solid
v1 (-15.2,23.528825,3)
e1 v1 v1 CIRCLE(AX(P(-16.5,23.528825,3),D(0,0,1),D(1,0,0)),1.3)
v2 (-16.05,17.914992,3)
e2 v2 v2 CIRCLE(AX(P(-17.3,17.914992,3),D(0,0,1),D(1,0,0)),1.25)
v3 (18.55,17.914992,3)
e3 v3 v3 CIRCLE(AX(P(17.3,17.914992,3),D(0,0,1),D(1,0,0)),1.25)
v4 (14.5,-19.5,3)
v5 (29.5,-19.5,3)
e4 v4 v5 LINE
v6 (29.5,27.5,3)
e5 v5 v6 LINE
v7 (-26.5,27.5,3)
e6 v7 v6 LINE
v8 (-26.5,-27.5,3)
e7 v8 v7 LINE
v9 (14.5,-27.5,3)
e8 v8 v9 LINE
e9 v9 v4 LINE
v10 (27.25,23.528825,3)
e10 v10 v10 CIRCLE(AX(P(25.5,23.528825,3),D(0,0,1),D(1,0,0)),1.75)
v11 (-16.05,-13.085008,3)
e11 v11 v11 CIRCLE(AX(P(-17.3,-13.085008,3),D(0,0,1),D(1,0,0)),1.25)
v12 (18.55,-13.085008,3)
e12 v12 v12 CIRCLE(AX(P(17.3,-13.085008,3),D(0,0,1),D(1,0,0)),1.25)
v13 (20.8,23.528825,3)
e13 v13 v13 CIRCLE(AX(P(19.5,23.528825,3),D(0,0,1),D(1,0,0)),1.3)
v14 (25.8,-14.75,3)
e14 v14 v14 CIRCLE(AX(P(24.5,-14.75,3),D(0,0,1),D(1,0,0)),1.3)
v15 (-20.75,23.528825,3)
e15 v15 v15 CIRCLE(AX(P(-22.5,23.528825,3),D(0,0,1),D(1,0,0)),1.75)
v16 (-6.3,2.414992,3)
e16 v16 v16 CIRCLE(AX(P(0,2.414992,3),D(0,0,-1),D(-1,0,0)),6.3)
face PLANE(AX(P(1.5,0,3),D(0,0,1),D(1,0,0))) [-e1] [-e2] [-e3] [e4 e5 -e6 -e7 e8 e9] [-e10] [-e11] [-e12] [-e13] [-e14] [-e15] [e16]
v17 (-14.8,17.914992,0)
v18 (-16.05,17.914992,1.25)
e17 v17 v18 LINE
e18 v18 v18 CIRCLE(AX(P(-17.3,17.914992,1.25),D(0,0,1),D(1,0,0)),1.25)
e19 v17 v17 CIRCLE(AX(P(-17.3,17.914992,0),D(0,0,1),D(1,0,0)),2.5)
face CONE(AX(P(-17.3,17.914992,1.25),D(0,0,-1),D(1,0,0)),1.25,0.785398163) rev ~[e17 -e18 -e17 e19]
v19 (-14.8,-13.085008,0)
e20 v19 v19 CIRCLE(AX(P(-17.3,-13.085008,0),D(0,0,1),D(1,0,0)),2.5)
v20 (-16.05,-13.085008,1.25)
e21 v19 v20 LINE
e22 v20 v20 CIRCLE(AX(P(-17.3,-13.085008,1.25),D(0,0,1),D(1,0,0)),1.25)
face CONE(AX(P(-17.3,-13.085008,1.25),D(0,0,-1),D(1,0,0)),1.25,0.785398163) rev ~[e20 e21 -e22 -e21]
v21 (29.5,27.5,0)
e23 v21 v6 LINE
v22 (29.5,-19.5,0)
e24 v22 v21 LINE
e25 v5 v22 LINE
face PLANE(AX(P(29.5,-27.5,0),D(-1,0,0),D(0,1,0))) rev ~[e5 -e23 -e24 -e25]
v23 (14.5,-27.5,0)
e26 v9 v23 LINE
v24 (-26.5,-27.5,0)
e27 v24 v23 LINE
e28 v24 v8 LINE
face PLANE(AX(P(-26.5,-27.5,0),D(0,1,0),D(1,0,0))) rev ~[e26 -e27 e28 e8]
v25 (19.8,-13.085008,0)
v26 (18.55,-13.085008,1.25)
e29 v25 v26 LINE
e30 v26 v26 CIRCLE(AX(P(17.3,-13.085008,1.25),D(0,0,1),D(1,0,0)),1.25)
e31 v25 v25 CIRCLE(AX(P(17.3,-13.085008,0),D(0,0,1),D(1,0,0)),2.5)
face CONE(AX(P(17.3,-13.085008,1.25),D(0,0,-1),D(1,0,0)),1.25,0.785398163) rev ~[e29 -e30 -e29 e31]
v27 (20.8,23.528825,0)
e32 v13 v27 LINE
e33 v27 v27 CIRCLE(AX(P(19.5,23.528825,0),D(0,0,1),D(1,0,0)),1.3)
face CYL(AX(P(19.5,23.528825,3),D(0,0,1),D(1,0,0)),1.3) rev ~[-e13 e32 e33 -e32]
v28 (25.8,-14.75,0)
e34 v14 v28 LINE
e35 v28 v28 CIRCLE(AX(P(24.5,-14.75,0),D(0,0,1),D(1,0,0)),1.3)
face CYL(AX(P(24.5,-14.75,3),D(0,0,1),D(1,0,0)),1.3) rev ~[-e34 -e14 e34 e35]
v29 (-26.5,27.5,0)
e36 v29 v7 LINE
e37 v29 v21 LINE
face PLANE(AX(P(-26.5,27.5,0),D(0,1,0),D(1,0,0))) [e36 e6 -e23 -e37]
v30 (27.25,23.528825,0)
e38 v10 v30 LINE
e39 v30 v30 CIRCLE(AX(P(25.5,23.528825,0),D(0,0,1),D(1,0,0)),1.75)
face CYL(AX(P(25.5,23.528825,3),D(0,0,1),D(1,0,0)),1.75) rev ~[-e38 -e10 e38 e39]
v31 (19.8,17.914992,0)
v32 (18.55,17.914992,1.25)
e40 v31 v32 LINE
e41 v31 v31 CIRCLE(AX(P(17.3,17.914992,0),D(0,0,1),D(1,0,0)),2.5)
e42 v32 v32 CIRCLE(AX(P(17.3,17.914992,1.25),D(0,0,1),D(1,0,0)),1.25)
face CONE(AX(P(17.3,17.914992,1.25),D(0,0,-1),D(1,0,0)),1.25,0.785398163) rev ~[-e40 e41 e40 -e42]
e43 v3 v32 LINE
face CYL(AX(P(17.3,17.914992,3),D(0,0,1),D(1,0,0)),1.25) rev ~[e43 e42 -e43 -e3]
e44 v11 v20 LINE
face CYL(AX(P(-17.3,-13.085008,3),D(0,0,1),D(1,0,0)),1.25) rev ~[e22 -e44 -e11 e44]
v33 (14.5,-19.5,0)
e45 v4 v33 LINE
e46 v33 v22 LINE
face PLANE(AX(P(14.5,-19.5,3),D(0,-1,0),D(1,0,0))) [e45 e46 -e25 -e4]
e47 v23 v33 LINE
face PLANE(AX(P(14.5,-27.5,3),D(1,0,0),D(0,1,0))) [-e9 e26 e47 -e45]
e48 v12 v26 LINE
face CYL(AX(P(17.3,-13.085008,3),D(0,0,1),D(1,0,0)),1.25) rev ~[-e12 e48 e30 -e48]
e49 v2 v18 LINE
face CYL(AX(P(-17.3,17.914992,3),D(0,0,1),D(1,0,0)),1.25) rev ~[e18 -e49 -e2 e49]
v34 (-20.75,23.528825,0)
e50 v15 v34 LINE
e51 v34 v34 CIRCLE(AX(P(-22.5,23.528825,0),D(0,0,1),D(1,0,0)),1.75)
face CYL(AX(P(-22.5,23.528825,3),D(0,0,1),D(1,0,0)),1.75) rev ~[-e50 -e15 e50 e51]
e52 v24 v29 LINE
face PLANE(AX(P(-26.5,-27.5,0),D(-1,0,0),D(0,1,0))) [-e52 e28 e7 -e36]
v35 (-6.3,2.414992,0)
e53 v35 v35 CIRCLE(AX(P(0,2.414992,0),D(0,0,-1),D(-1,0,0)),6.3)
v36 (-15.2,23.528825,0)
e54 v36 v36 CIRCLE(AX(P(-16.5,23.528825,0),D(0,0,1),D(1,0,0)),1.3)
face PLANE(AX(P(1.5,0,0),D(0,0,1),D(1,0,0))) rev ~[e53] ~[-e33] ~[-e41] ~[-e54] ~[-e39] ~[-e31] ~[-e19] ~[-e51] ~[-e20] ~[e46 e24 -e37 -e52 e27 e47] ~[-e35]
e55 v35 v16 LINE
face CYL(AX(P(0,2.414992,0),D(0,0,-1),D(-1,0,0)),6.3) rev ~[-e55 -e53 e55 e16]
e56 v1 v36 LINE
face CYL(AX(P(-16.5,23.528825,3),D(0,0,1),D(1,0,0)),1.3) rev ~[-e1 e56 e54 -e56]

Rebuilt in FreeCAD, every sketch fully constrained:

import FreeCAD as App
import Part
import Sketcher

V = App.Vector


def edges_at(feature, points):
    """Names of the edges that pass closest to the given points."""
    edges = feature.Shape.Edges
    near = lambda p: min(range(len(edges)), key=lambda i: edges[i].distToShape(Part.Vertex(*p))[0])
    return sorted({f"Edge{near(p) + 1}" for p in points})


def add_polygon(sketch, points):
    """Adds a closed chain of lines whose ends are joined by coincident constraints."""
    first, n = sketch.GeometryCount, len(points)
    for a, b in zip(points, points[1:] + points[:1]):
        sketch.addGeometry(Part.LineSegment(App.Vector(*a, 0), App.Vector(*b, 0)), False)
    for i in range(n):
        sketch.addConstraint(Sketcher.Constraint("Coincident", first + i, 2, first + (i + 1) % n, 1))

doc = App.newDocument("Part")
body = doc.addObject("PartDesign::Body", "Body")

# Sketch on XY plane
sketch1 = doc.addObject("Sketcher::SketchObject", "Sketch")
body.addObject(sketch1)
sketch1.AttachmentSupport = (doc.XY_Plane, [""])
sketch1.MapMode = "FlatFace"
add_polygon(sketch1, [(-26, 28), (-26, -28), (30, -28), (30, 28)])  # lines 0-3
sketch1.addConstraint([
    Sketcher.Constraint("Vertical", 0),
    Sketcher.Constraint("Horizontal", 1),
    Sketcher.Constraint("Vertical", 2),
    Sketcher.Constraint("Horizontal", 3),
    Sketcher.Constraint("DistanceX", 1, 1, 1, 2, 56.0),
    Sketcher.Constraint("DistanceY", 0, 2, 0, 1, 55.0),
    Sketcher.Constraint("DistanceX", 0, 2, -1, 1, 26.5),
    Sketcher.Constraint("DistanceY", 0, 2, -1, 1, 27.5),
])
pad1 = doc.addObject("PartDesign::Pad", "Pad")
body.addObject(pad1)
pad1.Profile = sketch1
pad1.Length = 3

# Sketch on XY plane
sketch2 = doc.addObject("Sketcher::SketchObject", "Sketch001")
body.addObject(sketch2)
sketch2.AttachmentSupport = (doc.XY_Plane, [""])
sketch2.MapMode = "FlatFace"
sketch2.AttachmentOffset = App.Placement(V(0, 0, 3), App.Rotation())
sketch2.addGeometry(Part.Circle(V(24.5, -14.8, 0), V(0, 0, 1), 1.3), False)  # 0
add_polygon(sketch2, [(14.5, -19.5), (14.5, -27.5), (29.5, -27.5), (29.5, -19.5)])  # lines 1-4
sketch2.addGeometry(Part.Circle(V(25.5, 23.5, 0), V(0, 0, 1), 1.8), False)  # 5
sketch2.addGeometry(Part.Circle(V(19.5, 23.5, 0), V(0, 0, 1), 1.3), False)  # 6
sketch2.addGeometry(Part.Circle(V(-22.5, 23.5, 0), V(0, 0, 1), 1.8), False)  # 7
sketch2.addGeometry(Part.Circle(V(-16.5, 23.5, 0), V(0, 0, 1), 1.3), False)  # 8
sketch2.addConstraint([
    Sketcher.Constraint("Vertical", 1),
    Sketcher.Constraint("Horizontal", 2),
    Sketcher.Constraint("Vertical", 3),
    Sketcher.Constraint("Horizontal", 4),
    Sketcher.Constraint("Equal", 0, 6),
    Sketcher.Constraint("Equal", 5, 7),
    Sketcher.Constraint("Equal", 6, 8),
    Sketcher.Constraint("Horizontal", 5, 3, 6, 3),
    Sketcher.Constraint("Horizontal", 6, 3, 7, 3),
    Sketcher.Constraint("Horizontal", 7, 3, 8, 3),
    Sketcher.Constraint("Diameter", 0, 2.6),
    Sketcher.Constraint("Diameter", 5, 3.5),
    Sketcher.Constraint("DistanceX", 2, 1, 2, 2, 15.0),
    Sketcher.Constraint("DistanceY", 1, 2, 1, 1, 8.0),
    Sketcher.Constraint("DistanceX", 0, 3, 5, 3, 1.0),
    Sketcher.Constraint("DistanceX", 6, 3, 5, 3, 6.0),
    Sketcher.Constraint("DistanceX", 7, 3, 6, 3, 42.0),
    Sketcher.Constraint("DistanceX", 7, 3, 8, 3, 6.0),
    Sketcher.Constraint("DistanceX", 1, 2, 0, 3, 10.0),
    Sketcher.Constraint("DistanceX", -1, 1, 0, 3, 24.5),
    Sketcher.Constraint("DistanceY", 1, 2, -1, 1, 27.5),
    Sketcher.Constraint("DistanceY", 0, 3, -1, 1, 14.75),
    Sketcher.Constraint("DistanceY", -1, 1, 5, 3, 23.528825),
])
pocket1 = doc.addObject("PartDesign::Pocket", "Pocket")
body.addObject(pocket1)
pocket1.Profile = sketch2
pocket1.Length = 4

# Sketch on XY plane
sketch3 = doc.addObject("Sketcher::SketchObject", "Sketch002")
body.addObject(sketch3)
sketch3.AttachmentSupport = (doc.XY_Plane, [""])
sketch3.MapMode = "FlatFace"
sketch3.addGeometry(Part.Circle(V(0, 2, 0), V(0, 0, 1), 6), False)
sketch3.addConstraint([
    Sketcher.Constraint("PointOnObject", 0, 3, -2),
    Sketcher.Constraint("Diameter", 0, 12.6),
    Sketcher.Constraint("DistanceY", -1, 1, 0, 3, 2.414992),
])
pocket2 = doc.addObject("PartDesign::Pocket", "Pocket001")
body.addObject(pocket2)
pocket2.Profile = sketch3
pocket2.Type = "UpToFirst"
pocket2.Reversed = True

# Sketch on XY plane
sketch4 = doc.addObject("Sketcher::SketchObject", "Sketch003")
body.addObject(sketch4)
sketch4.AttachmentSupport = (doc.XY_Plane, [""])
sketch4.MapMode = "FlatFace"
sketch4.AttachmentOffset = App.Placement(V(0, 0, 3), App.Rotation())
sketch4.addGeometry([
    Part.Circle(V(-17.3, 17.9, 0), V(0, 0, 1), 1.2),
    Part.Circle(V(17.3, 17.9, 0), V(0, 0, 1), 1.2),
    Part.Circle(V(-17.3, -13.1, 0), V(0, 0, 1), 1.2),
    Part.Circle(V(17.3, -13.1, 0), V(0, 0, 1), 1.2),
], False)
sketch4.addConstraint([
    Sketcher.Constraint("Equal", 0, 1),
    Sketcher.Constraint("Equal", 1, 2),
    Sketcher.Constraint("Equal", 2, 3),
    Sketcher.Constraint("Symmetric", 0, 3, 1, 3, -2),
    Sketcher.Constraint("Symmetric", 2, 3, 3, 3, -2),
    Sketcher.Constraint("Vertical", 0, 3, 2, 3),
    Sketcher.Constraint("Diameter", 0, 2.5),
    Sketcher.Constraint("DistanceY", 2, 3, 0, 3, 31.0),
    Sketcher.Constraint("DistanceX", 0, 3, -1, 1, 17.3),
    Sketcher.Constraint("DistanceY", -1, 1, 0, 3, 17.914992),
])
pocket3 = doc.addObject("PartDesign::Pocket", "Pocket002")
body.addObject(pocket3)
pocket3.Profile = sketch4
pocket3.Length = 10
doc.recompute()

chamfer = doc.addObject("PartDesign::Chamfer", "Chamfer")
body.addObject(chamfer)
chamfer.Base = (pocket3, edges_at(pocket3, [
    (16.05, 17.915, 0),
    (-18.55, -13.085, 0),
    (16.05, -13.085, 0),
    (-18.55, 17.915, 0),
]))
chamfer.Size = 1.25

doc.recompute()
